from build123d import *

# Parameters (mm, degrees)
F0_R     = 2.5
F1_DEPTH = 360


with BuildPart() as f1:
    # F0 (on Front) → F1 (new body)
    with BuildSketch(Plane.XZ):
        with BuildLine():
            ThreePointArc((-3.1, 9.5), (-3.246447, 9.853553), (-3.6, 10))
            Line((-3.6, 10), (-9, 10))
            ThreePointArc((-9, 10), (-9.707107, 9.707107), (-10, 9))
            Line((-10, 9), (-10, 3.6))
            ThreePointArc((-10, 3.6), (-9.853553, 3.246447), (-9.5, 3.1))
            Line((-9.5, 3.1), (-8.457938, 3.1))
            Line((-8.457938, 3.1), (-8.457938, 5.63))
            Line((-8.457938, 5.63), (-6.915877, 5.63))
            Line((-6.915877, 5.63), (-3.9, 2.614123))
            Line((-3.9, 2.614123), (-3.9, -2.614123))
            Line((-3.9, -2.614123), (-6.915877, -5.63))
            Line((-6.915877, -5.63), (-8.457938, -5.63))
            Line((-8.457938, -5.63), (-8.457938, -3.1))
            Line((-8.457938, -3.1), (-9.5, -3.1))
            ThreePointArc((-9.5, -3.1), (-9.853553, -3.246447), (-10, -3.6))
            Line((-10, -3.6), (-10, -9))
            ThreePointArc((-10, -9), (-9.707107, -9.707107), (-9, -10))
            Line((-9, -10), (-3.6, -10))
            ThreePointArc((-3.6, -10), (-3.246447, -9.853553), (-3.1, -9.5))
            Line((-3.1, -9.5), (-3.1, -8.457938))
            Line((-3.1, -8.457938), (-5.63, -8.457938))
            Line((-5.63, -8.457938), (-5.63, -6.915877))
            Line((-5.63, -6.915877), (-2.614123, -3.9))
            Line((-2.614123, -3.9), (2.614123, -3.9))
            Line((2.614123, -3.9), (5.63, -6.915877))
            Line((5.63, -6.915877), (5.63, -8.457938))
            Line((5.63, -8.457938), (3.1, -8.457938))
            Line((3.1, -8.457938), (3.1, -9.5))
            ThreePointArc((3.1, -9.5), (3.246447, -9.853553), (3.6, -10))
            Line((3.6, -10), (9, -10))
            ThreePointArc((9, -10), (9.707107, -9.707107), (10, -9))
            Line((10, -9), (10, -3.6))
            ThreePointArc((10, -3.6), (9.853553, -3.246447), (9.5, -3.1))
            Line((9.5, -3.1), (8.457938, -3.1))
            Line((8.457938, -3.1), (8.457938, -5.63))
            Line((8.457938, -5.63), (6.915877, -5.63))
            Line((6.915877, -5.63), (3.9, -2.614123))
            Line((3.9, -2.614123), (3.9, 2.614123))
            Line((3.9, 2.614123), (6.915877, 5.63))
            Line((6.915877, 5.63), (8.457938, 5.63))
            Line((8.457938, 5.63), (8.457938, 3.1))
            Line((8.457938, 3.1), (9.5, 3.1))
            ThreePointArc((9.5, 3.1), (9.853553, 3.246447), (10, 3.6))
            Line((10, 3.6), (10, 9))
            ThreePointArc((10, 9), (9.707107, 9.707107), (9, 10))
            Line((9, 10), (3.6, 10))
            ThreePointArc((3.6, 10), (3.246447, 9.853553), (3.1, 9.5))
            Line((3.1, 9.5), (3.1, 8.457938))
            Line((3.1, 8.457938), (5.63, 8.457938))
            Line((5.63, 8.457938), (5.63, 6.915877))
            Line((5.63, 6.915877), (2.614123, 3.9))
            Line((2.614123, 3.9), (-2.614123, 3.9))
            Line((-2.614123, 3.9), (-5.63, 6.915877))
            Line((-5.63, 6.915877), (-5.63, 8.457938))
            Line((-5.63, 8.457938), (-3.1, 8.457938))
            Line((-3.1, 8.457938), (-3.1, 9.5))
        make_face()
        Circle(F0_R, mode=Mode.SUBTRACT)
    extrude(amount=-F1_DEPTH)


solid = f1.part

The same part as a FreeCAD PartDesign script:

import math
import FreeCAD as App
import Part
import Sketcher
Q = App.Units.Quantity

doc = App.newDocument("Part")
params = doc.addObject("Spreadsheet::Sheet", "Params")
for row, (alias, value) in enumerate([
    ("sketch1_diameter", "5 mm"),
    ("sketch1_radius", "0.999999 mm"),
    ("sketch1_radius2", "0.500001 mm"),
    ("sketch1_width", "5.4 mm"),
    ("sketch1_width2", "2.53 mm"),
    ("pad1_length", "360 mm"),
], start=1):
    params.set(f"A{row}", alias)
    params.set(f"B{row}", "=" + value)
    params.setAlias(f"B{row}", alias)

body = doc.addObject("PartDesign::Body", "Body")

sketch1 = body.newObject("Sketcher::SketchObject", "Sketch")
sketch1.AttachmentSupport = (doc.getObject("XZ_Plane"), [""])
sketch1.MapMode = "FlatFace"
sketch1.addGeometry(Part.ArcOfCircle(Part.Circle(App.Vector(-3.6, 9.5, 0), App.Vector(0, 0, 1), 0.5), math.radians(0), math.radians(90)), False)
sketch1.addGeometry(Part.LineSegment(App.Vector(-3.6, 10, 0), App.Vector(-9, 10, 0)), False)
sketch1.addGeometry(Part.ArcOfCircle(Part.Circle(App.Vector(-9, 9, 0), App.Vector(0, 0, 1), 1), math.radians(90), math.radians(180)), False)
sketch1.addGeometry(Part.LineSegment(App.Vector(-10, 9, 0), App.Vector(-10, 3.6, 0)), False)
sketch1.addGeometry(Part.ArcOfCircle(Part.Circle(App.Vector(-9.5, 3.6, 0), App.Vector(0, 0, 1), 0.5), math.radians(-180), math.radians(-90)), False)
sketch1.addGeometry(Part.LineSegment(App.Vector(-9.5, 3.1, 0), App.Vector(-8.5, 3.1, 0)), False)
sketch1.addGeometry(Part.LineSegment(App.Vector(-8.5, 3.1, 0), App.Vector(-8.5, 5.6, 0)), False)
sketch1.addGeometry(Part.LineSegment(App.Vector(-8.5, 5.6, 0), App.Vector(-6.9, 5.6, 0)), False)
sketch1.addGeometry(Part.LineSegment(App.Vector(-6.9, 5.6, 0), App.Vector(-3.9, 2.6, 0)), False)
sketch1.addGeometry(Part.LineSegment(App.Vector(-3.9, 2.6, 0), App.Vector(-3.9, -2.6, 0)), False)
sketch1.addGeometry(Part.LineSegment(App.Vector(-3.9, -2.6, 0), App.Vector(-6.9, -5.6, 0)), False)
sketch1.addGeometry(Part.LineSegment(App.Vector(-6.9, -5.6, 0), App.Vector(-8.5, -5.6, 0)), False)
sketch1.addGeometry(Part.LineSegment(App.Vector(-8.5, -5.6, 0), App.Vector(-8.5, -3.1, 0)), False)
sketch1.addGeometry(Part.LineSegment(App.Vector(-8.5, -3.1, 0), App.Vector(-9.5, -3.1, 0)), False)
sketch1.addGeometry(Part.ArcOfCircle(Part.Circle(App.Vector(-9.5, -3.6, 0), App.Vector(0, 0, 1), 0.5), math.radians(90), math.radians(180)), False)
sketch1.addGeometry(Part.LineSegment(App.Vector(-10, -3.6, 0), App.Vector(-10, -9, 0)), False)
sketch1.addGeometry(Part.ArcOfCircle(Part.Circle(App.Vector(-9, -9, 0), App.Vector(0, 0, 1), 1), math.radians(180), math.radians(270)), False)
sketch1.addGeometry(Part.LineSegment(App.Vector(-9, -10, 0), App.Vector(-3.6, -10, 0)), False)
sketch1.addGeometry(Part.ArcOfCircle(Part.Circle(App.Vector(-3.6, -9.5, 0), App.Vector(0, 0, 1), 0.5), math.radians(-90), math.radians(0)), False)
sketch1.addGeometry(Part.LineSegment(App.Vector(-3.1, -9.5, 0), App.Vector(-3.1, -8.5, 0)), False)
sketch1.addGeometry(Part.LineSegment(App.Vector(-3.1, -8.5, 0), App.Vector(-5.6, -8.5, 0)), False)
sketch1.addGeometry(Part.LineSegment(App.Vector(-5.6, -8.5, 0), App.Vector(-5.6, -6.9, 0)), False)
sketch1.addGeometry(Part.LineSegment(App.Vector(-5.6, -6.9, 0), App.Vector(-2.6, -3.9, 0)), False)
sketch1.addGeometry(Part.LineSegment(App.Vector(-2.6, -3.9, 0), App.Vector(2.6, -3.9, 0)), False)
sketch1.addGeometry(Part.LineSegment(App.Vector(2.6, -3.9, 0), App.Vector(5.6, -6.9, 0)), False)
sketch1.addGeometry(Part.LineSegment(App.Vector(5.6, -6.9, 0), App.Vector(5.6, -8.5, 0)), False)
sketch1.addGeometry(Part.LineSegment(App.Vector(5.6, -8.5, 0), App.Vector(3.1, -8.5, 0)), False)
sketch1.addGeometry(Part.LineSegment(App.Vector(3.1, -8.5, 0), App.Vector(3.1, -9.5, 0)), False)
sketch1.addGeometry(Part.ArcOfCircle(Part.Circle(App.Vector(3.6, -9.5, 0), App.Vector(0, 0, 1), 0.5), math.radians(-180), math.radians(-90)), False)
sketch1.addGeometry(Part.LineSegment(App.Vector(3.6, -10, 0), App.Vector(9, -10, 0)), False)
sketch1.addGeometry(Part.ArcOfCircle(Part.Circle(App.Vector(9, -9, 0), App.Vector(0, 0, 1), 1), math.radians(-90), math.radians(0)), False)
sketch1.addGeometry(Part.LineSegment(App.Vector(10, -9, 0), App.Vector(10, -3.6, 0)), False)
sketch1.addGeometry(Part.ArcOfCircle(Part.Circle(App.Vector(9.5, -3.6, 0), App.Vector(0, 0, 1), 0.5), math.radians(0), math.radians(90)), False)
sketch1.addGeometry(Part.LineSegment(App.Vector(9.5, -3.1, 0), App.Vector(8.5, -3.1, 0)), False)
sketch1.addGeometry(Part.LineSegment(App.Vector(8.5, -3.1, 0), App.Vector(8.5, -5.6, 0)), False)
sketch1.addGeometry(Part.LineSegment(App.Vector(8.5, -5.6, 0), App.Vector(6.9, -5.6, 0)), False)
sketch1.addGeometry(Part.LineSegment(App.Vector(6.9, -5.6, 0), App.Vector(3.9, -2.6, 0)), False)
sketch1.addGeometry(Part.LineSegment(App.Vector(3.9, -2.6, 0), App.Vector(3.9, 2.6, 0)), False)
sketch1.addGeometry(Part.LineSegment(App.Vector(3.9, 2.6, 0), App.Vector(6.9, 5.6, 0)), False)
sketch1.addGeometry(Part.LineSegment(App.Vector(6.9, 5.6, 0), App.Vector(8.5, 5.6, 0)), False)
sketch1.addGeometry(Part.LineSegment(App.Vector(8.5, 5.6, 0), App.Vector(8.5, 3.1, 0)), False)
sketch1.addGeometry(Part.LineSegment(App.Vector(8.5, 3.1, 0), App.Vector(9.5, 3.1, 0)), False)
sketch1.addGeometry(Part.ArcOfCircle(Part.Circle(App.Vector(9.5, 3.6, 0), App.Vector(0, 0, 1), 0.5), math.radians(-90), math.radians(0)), False)
sketch1.addGeometry(Part.LineSegment(App.Vector(10, 3.6, 0), App.Vector(10, 9, 0)), False)
sketch1.addGeometry(Part.ArcOfCircle(Part.Circle(App.Vector(9, 9, 0), App.Vector(0, 0, 1), 1), math.radians(0), math.radians(90)), False)
sketch1.addGeometry(Part.LineSegment(App.Vector(9, 10, 0), App.Vector(3.6, 10, 0)), False)
sketch1.addGeometry(Part.ArcOfCircle(Part.Circle(App.Vector(3.6, 9.5, 0), App.Vector(0, 0, 1), 0.5), math.radians(90), math.radians(180)), False)
sketch1.addGeometry(Part.LineSegment(App.Vector(3.1, 9.5, 0), App.Vector(3.1, 8.5, 0)), False)
sketch1.addGeometry(Part.LineSegment(App.Vector(3.1, 8.5, 0), App.Vector(5.6, 8.5, 0)), False)
sketch1.addGeometry(Part.LineSegment(App.Vector(5.6, 8.5, 0), App.Vector(5.6, 6.9, 0)), False)
sketch1.addGeometry(Part.LineSegment(App.Vector(5.6, 6.9, 0), App.Vector(2.6, 3.9, 0)), False)
sketch1.addGeometry(Part.LineSegment(App.Vector(2.6, 3.9, 0), App.Vector(-2.6, 3.9, 0)), False)
sketch1.addGeometry(Part.LineSegment(App.Vector(-2.6, 3.9, 0), App.Vector(-5.6, 6.9, 0)), False)
sketch1.addGeometry(Part.LineSegment(App.Vector(-5.6, 6.9, 0), App.Vector(-5.6, 8.5, 0)), False)
sketch1.addGeometry(Part.LineSegment(App.Vector(-5.6, 8.5, 0), App.Vector(-3.1, 8.5, 0)), False)
sketch1.addGeometry(Part.LineSegment(App.Vector(-3.1, 8.5, 0), App.Vector(-3.1, 9.5, 0)), False)
sketch1.addGeometry(Part.Circle(App.Vector(0, 0, 0), App.Vector(0, 0, 1), 2.5), False)
sketch1.addConstraint(Sketcher.Constraint("Coincident", 0, 2, 1, 1))
sketch1.addConstraint(Sketcher.Constraint("Tangent", 1, 2, 2, 1))
sketch1.addConstraint(Sketcher.Constraint("Tangent", 2, 2, 3, 1))
sketch1.addConstraint(Sketcher.Constraint("Coincident", 3, 2, 4, 1))
sketch1.addConstraint(Sketcher.Constraint("Coincident", 4, 2, 5, 1))
sketch1.addConstraint(Sketcher.Constraint("Coincident", 5, 2, 6, 1))
sketch1.addConstraint(Sketcher.Constraint("Coincident", 6, 2, 7, 1))
sketch1.addConstraint(Sketcher.Constraint("Coincident", 7, 2, 8, 1))
sketch1.addConstraint(Sketcher.Constraint("Coincident", 8, 2, 9, 1))
sketch1.addConstraint(Sketcher.Constraint("Coincident", 9, 2, 10, 1))
sketch1.addConstraint(Sketcher.Constraint("Coincident", 10, 2, 11, 1))
sketch1.addConstraint(Sketcher.Constraint("Coincident", 11, 2, 12, 1))
sketch1.addConstraint(Sketcher.Constraint("Coincident", 12, 2, 13, 1))
sketch1.addConstraint(Sketcher.Constraint("Coincident", 13, 2, 14, 1))
sketch1.addConstraint(Sketcher.Constraint("Coincident", 14, 2, 15, 1))
sketch1.addConstraint(Sketcher.Constraint("Tangent", 15, 2, 16, 1))
sketch1.addConstraint(Sketcher.Constraint("Tangent", 16, 2, 17, 1))
sketch1.addConstraint(Sketcher.Constraint("Coincident", 17, 2, 18, 1))
sketch1.addConstraint(Sketcher.Constraint("Coincident", 18, 2, 19, 1))
sketch1.addConstraint(Sketcher.Constraint("Coincident", 19, 2, 20, 1))
sketch1.addConstraint(Sketcher.Constraint("Coincident", 20, 2, 21, 1))
sketch1.addConstraint(Sketcher.Constraint("Coincident", 21, 2, 22, 1))
sketch1.addConstraint(Sketcher.Constraint("Coincident", 22, 2, 23, 1))
sketch1.addConstraint(Sketcher.Constraint("Coincident", 23, 2, 24, 1))
sketch1.addConstraint(Sketcher.Constraint("Coincident", 24, 2, 25, 1))
sketch1.addConstraint(Sketcher.Constraint("Coincident", 25, 2, 26, 1))
sketch1.addConstraint(Sketcher.Constraint("Coincident", 26, 2, 27, 1))
sketch1.addConstraint(Sketcher.Constraint("Coincident", 27, 2, 28, 1))
sketch1.addConstraint(Sketcher.Constraint("Coincident", 28, 2, 29, 1))
sketch1.addConstraint(Sketcher.Constraint("Tangent", 29, 2, 30, 1))
sketch1.addConstraint(Sketcher.Constraint("Tangent", 30, 2, 31, 1))
sketch1.addConstraint(Sketcher.Constraint("Coincident", 31, 2, 32, 1))
sketch1.addConstraint(Sketcher.Constraint("Coincident", 32, 2, 33, 1))
sketch1.addConstraint(Sketcher.Constraint("Coincident", 33, 2, 34, 1))
sketch1.addConstraint(Sketcher.Constraint("Coincident", 34, 2, 35, 1))
sketch1.addConstraint(Sketcher.Constraint("Coincident", 35, 2, 36, 1))
sketch1.addConstraint(Sketcher.Constraint("Coincident", 36, 2, 37, 1))
sketch1.addConstraint(Sketcher.Constraint("Coincident", 37, 2, 38, 1))
sketch1.addConstraint(Sketcher.Constraint("Coincident", 38, 2, 39, 1))
sketch1.addConstraint(Sketcher.Constraint("Coincident", 39, 2, 40, 1))
sketch1.addConstraint(Sketcher.Constraint("Coincident", 40, 2, 41, 1))
sketch1.addConstraint(Sketcher.Constraint("Coincident", 41, 2, 42, 1))
sketch1.addConstraint(Sketcher.Constraint("Coincident", 42, 2, 43, 1))
sketch1.addConstraint(Sketcher.Constraint("Tangent", 43, 2, 44, 1))
sketch1.addConstraint(Sketcher.Constraint("Tangent", 44, 2, 45, 1))
sketch1.addConstraint(Sketcher.Constraint("Coincident", 45, 2, 46, 1))
sketch1.addConstraint(Sketcher.Constraint("Coincident", 46, 2, 47, 1))
sketch1.addConstraint(Sketcher.Constraint("Coincident", 47, 2, 48, 1))
sketch1.addConstraint(Sketcher.Constraint("Coincident", 48, 2, 49, 1))
sketch1.addConstraint(Sketcher.Constraint("Coincident", 49, 2, 50, 1))
sketch1.addConstraint(Sketcher.Constraint("Coincident", 50, 2, 51, 1))
sketch1.addConstraint(Sketcher.Constraint("Coincident", 51, 2, 52, 1))
sketch1.addConstraint(Sketcher.Constraint("Coincident", 52, 2, 53, 1))
sketch1.addConstraint(Sketcher.Constraint("Coincident", 53, 2, 54, 1))
sketch1.addConstraint(Sketcher.Constraint("Coincident", 54, 2, 55, 1))
sketch1.addConstraint(Sketcher.Constraint("Coincident", 55, 2, 0, 1))
sketch1.addConstraint(Sketcher.Constraint("Horizontal", 1))
sketch1.addConstraint(Sketcher.Constraint("Vertical", 3))
sketch1.addConstraint(Sketcher.Constraint("Horizontal", 5))
sketch1.addConstraint(Sketcher.Constraint("Vertical", 6))
sketch1.addConstraint(Sketcher.Constraint("Horizontal", 7))
sketch1.addConstraint(Sketcher.Constraint("Vertical", 9))
sketch1.addConstraint(Sketcher.Constraint("Horizontal", 11))
sketch1.addConstraint(Sketcher.Constraint("Vertical", 12))
sketch1.addConstraint(Sketcher.Constraint("Horizontal", 13))
sketch1.addConstraint(Sketcher.Constraint("Vertical", 15))
sketch1.addConstraint(Sketcher.Constraint("Horizontal", 17))
sketch1.addConstraint(Sketcher.Constraint("Vertical", 19))
sketch1.addConstraint(Sketcher.Constraint("Horizontal", 20))
sketch1.addConstraint(Sketcher.Constraint("Vertical", 21))
sketch1.addConstraint(Sketcher.Constraint("Horizontal", 23))
sketch1.addConstraint(Sketcher.Constraint("Vertical", 25))
sketch1.addConstraint(Sketcher.Constraint("Horizontal", 26))
sketch1.addConstraint(Sketcher.Constraint("Vertical", 27))
sketch1.addConstraint(Sketcher.Constraint("Horizontal", 29))
sketch1.addConstraint(Sketcher.Constraint("Vertical", 31))
sketch1.addConstraint(Sketcher.Constraint("Horizontal", 33))
sketch1.addConstraint(Sketcher.Constraint("Vertical", 34))
sketch1.addConstraint(Sketcher.Constraint("Horizontal", 35))
sketch1.addConstraint(Sketcher.Constraint("Vertical", 37))
sketch1.addConstraint(Sketcher.Constraint("Horizontal", 39))
sketch1.addConstraint(Sketcher.Constraint("Vertical", 40))
sketch1.addConstraint(Sketcher.Constraint("Horizontal", 41))
sketch1.addConstraint(Sketcher.Constraint("Vertical", 43))
sketch1.addConstraint(Sketcher.Constraint("Horizontal", 45))
sketch1.addConstraint(Sketcher.Constraint("Vertical", 47))
sketch1.addConstraint(Sketcher.Constraint("Horizontal", 48))
sketch1.addConstraint(Sketcher.Constraint("Vertical", 49))
sketch1.addConstraint(Sketcher.Constraint("Horizontal", 51))
sketch1.addConstraint(Sketcher.Constraint("Vertical", 53))
sketch1.addConstraint(Sketcher.Constraint("Horizontal", 54))
sketch1.addConstraint(Sketcher.Constraint("Vertical", 55))
sketch1.addConstraint(Sketcher.Constraint("Coincident", 56, 3, -1, 1))
sketch1.addConstraint(Sketcher.Constraint("Equal", 0, 4))
sketch1.addConstraint(Sketcher.Constraint("Equal", 4, 14))
sketch1.addConstraint(Sketcher.Constraint("Equal", 2, 16))
sketch1.addConstraint(Sketcher.Constraint("Equal", 14, 18))
sketch1.addConstraint(Sketcher.Constraint("Equal", 18, 28))
sketch1.addConstraint(Sketcher.Constraint("Equal", 16, 30))
sketch1.addConstraint(Sketcher.Constraint("Equal", 28, 32))
sketch1.addConstraint(Sketcher.Constraint("Equal", 32, 42))
sketch1.addConstraint(Sketcher.Constraint("Equal", 30, 44))
sketch1.addConstraint(Sketcher.Constraint("Equal", 42, 46))
sketch1.addConstraint(Sketcher.Constraint("Symmetric", 0, 3, 28, 3, -1, 1))
sketch1.addConstraint(Sketcher.Constraint("Symmetric", 4, 3, 32, 3, -1, 1))
sketch1.addConstraint(Sketcher.Constraint("Symmetric", 14, 3, 42, 3, -1, 1))
sketch1.addConstraint(Sketcher.Constraint("Symmetric", 18, 3, 46, 3, -1, 1))
sketch1.addConstraint(Sketcher.Constraint("Symmetric", 6, 2, 34, 2, -1, 1))
sketch1.addConstraint(Sketcher.Constraint("Symmetric", 8, 2, 36, 2, -1, 1))
sketch1.addConstraint(Sketcher.Constraint("Symmetric", 10, 2, 38, 2, -1, 1))
sketch1.addConstraint(Sketcher.Constraint("Symmetric", 20, 2, 48, 2, -1, 1))
sketch1.addConstraint(Sketcher.Constraint("Symmetric", 22, 2, 50, 2, -1, 1))
sketch1.addConstraint(Sketcher.Constraint("Symmetric", 24, 2, 52, 2, -1, 1))
sketch1.addConstraint(Sketcher.Constraint("Symmetric", 18, 3, 28, 3, -2))
sketch1.addConstraint(Sketcher.Constraint("Symmetric", 14, 3, 32, 3, -2))
sketch1.addConstraint(Sketcher.Constraint("Symmetric", 21, 2, 24, 2, -2))
sketch1.addConstraint(Sketcher.Constraint("Symmetric", 11, 2, 34, 2, -2))
sketch1.addConstraint(Sketcher.Constraint("Perpendicular", 8, 10))
sketch1.addConstraint(Sketcher.Constraint("Parallel", 10, 22))
sketch1.addConstraint(Sketcher.Constraint("Perpendicular", 22, 24))
sketch1.addConstraint(Sketcher.Constraint("Parallel", 24, 36))
sketch1.addConstraint(Sketcher.Constraint("Perpendicular", 36, 38))
sketch1.addConstraint(Sketcher.Constraint("Parallel", 38, 50))
sketch1.addConstraint(Sketcher.Constraint("Perpendicular", 50, 52))
sketch1.addConstraint(Sketcher.Constraint("Horizontal", 42, 3, 3, 2))
sketch1.addConstraint(Sketcher.Constraint("Horizontal", 32, 3, 14, 2))
sketch1.addConstraint(Sketcher.Constraint("Horizontal", 28, 3, 18, 2))
sketch1.addConstraint(Sketcher.Constraint("Horizontal", 20, 2, 25, 2))
sketch1.addConstraint(Sketcher.Constraint("Horizontal", 18, 2, 27, 2))
sketch1.addConstraint(Sketcher.Constraint("Horizontal", 14, 2, 31, 2))
sketch1.addConstraint(Sketcher.Constraint("Horizontal", 9, 2, 36, 2))
sketch1.addConstraint(Sketcher.Constraint("Horizontal", 3, 2, 42, 2))
sketch1.addConstraint(Sketcher.Constraint("Horizontal", 0, 3, 46, 2))
sketch1.addConstraint(Sketcher.Constraint("Horizontal", 48, 2, 53, 2))
sketch1.addConstraint(Sketcher.Constraint("Horizontal", 46, 2, 55, 2))
sketch1.addConstraint(Sketcher.Constraint("Vertical", 18, 3, 0, 2))
sketch1.addConstraint(Sketcher.Constraint("Vertical", 14, 3, 4, 2))
sketch1.addConstraint(Sketcher.Constraint("Vertical", 7, 2, 10, 2))
sketch1.addConstraint(Sketcher.Constraint("Vertical", 4, 2, 13, 2))
sketch1.addConstraint(Sketcher.Constraint("Vertical", 0, 2, 17, 2))
sketch1.addConstraint(Sketcher.Constraint("Vertical", 46, 3, 28, 2))
sketch1.addConstraint(Sketcher.Constraint("Vertical", 42, 3, 32, 2))
sketch1.addConstraint(Sketcher.Constraint("Vertical", 34, 2, 39, 2))
sketch1.addConstraint(Sketcher.Constraint("Vertical", 32, 2, 41, 2))
sketch1.addConstraint(Sketcher.Constraint("Vertical", 28, 2, 45, 2))
sketch1.addConstraint(Sketcher.Constraint("Equal", 45, 3))
sketch1.addConstraint(Sketcher.Constraint("Equal", 54, 6))
sketch1.addConstraint(Sketcher.Constraint("Equal", 51, 9))
sketch1.addConstraint(Sketcher.Constraint("Equal", 41, 19))
sketch1.addConstraint(Sketcher.Constraint("Equal", 39, 21))
sketch1.addConstraint(Sketcher.Constraint("Equal", 10, 22))
sketch1.addConstraint(Sketcher.Constraint("Diameter", 56, Q("5 mm")))
sketch1.addConstraint(Sketcher.Constraint("Radius", 2, Q("0.999999 mm")))
sketch1.addConstraint(Sketcher.Constraint("Radius", 0, Q("0.500001 mm")))
sketch1.addConstraint(Sketcher.Constraint("DistanceX", 1, 2, 1, 1, Q("5.4 mm")))
sketch1.addConstraint(Sketcher.Constraint("DistanceX", 2, 3, -1, 1, Q("9.000001 mm")))
sketch1.addConstraint(Sketcher.Constraint("DistanceX", 20, 2, 20, 1, Q("2.53 mm")))
sketch1.addConstraint(Sketcher.Constraint("DistanceX", 8, 2, -1, 1, Q("3.9 mm")))
sketch1.addConstraint(Sketcher.Constraint("DistanceX", 5, 1, 5, 2, Q("1.042062 mm")))
sketch1.addConstraint(Sketcher.Constraint("DistanceX", 7, 1, 7, 2, Q("1.542061 mm")))
sketch1.setExpression("Constraints[151]", "Params.sketch1_diameter")
sketch1.setExpression("Constraints[152]", "Params.sketch1_radius")
sketch1.setExpression("Constraints[153]", "Params.sketch1_radius2")
sketch1.setExpression("Constraints[154]", "Params.sketch1_width")
sketch1.setExpression("Constraints[156]", "Params.sketch1_width2")
pad1 = body.newObject("PartDesign::Pad", "Pad")
pad1.Profile = sketch1
pad1.setExpression("Length", "Params.pad1_length")
pad1.Reversed = True

doc.recompute()
